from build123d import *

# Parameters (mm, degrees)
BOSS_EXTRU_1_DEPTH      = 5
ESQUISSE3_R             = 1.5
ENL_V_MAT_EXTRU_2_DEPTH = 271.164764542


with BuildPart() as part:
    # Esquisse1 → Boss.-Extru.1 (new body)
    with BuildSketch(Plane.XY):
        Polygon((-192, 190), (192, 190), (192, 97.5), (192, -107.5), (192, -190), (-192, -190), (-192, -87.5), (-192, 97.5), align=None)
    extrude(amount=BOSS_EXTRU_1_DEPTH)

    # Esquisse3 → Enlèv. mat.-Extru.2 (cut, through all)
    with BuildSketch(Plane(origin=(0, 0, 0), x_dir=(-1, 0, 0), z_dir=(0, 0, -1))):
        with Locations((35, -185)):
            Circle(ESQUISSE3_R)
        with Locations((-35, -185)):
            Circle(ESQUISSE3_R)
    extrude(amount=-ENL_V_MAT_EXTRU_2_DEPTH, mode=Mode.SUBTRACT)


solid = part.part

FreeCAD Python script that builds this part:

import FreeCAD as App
import Part
import Sketcher
from FreeCAD import Vector


def add_polygon(sketch, points):
    """Adds a closed chain of lines whose ends are joined by coincident constraints."""
    first, n = sketch.GeometryCount, len(points)
    for a, b in zip(points, points[1:] + points[:1]):
        sketch.addGeometry(Part.LineSegment(App.Vector(*a, 0), App.Vector(*b, 0)), False)
    for i in range(n):
        sketch.addConstraint(Sketcher.Constraint("Coincident", first + i, 2, first + (i + 1) % n, 1))

doc = App.newDocument("Part")
body = doc.addObject("PartDesign::Body", "Body")

# Sketch on XY plane
sketch1 = body.newObject("Sketcher::SketchObject", "Sketch")
sketch1.AttachmentSupport = (doc.getObject("XY_Plane"), [""])
sketch1.MapMode = "FlatFace"
add_polygon(sketch1, [(192, 190), (-192, 190), (-192, -190), (192, -190)])  # lines 0-3
sketch1.addConstraint(Sketcher.Constraint("Horizontal", 0))
sketch1.addConstraint(Sketcher.Constraint("Vertical", 1))
sketch1.addConstraint(Sketcher.Constraint("Horizontal", 2))
sketch1.addConstraint(Sketcher.Constraint("Vertical", 3))
sketch1.addConstraint(Sketcher.Constraint("Symmetric", 0, 2, 2, 2, -1, 1))
sketch1.addConstraint(Sketcher.Constraint("DistanceX", 0, 2, 0, 1, 384.0))
sketch1.addConstraint(Sketcher.Constraint("DistanceY", 1, 2, 1, 1, 380.0))
pad1 = body.newObject("PartDesign::Pad", "Pad")
pad1.Profile = sketch1
pad1.Length = 5

# Sketch on XY plane
sketch2 = body.newObject("Sketcher::SketchObject", "Sketch001")
sketch2.AttachmentSupport = (doc.getObject("XY_Plane"), [""])
sketch2.MapMode = "FlatFace"
sketch2.addGeometry(Part.Circle(Vector(-35, -185, 0), Vector(0, 0, 1), 1.5), False)
sketch2.addGeometry(Part.Circle(Vector(35, -185, 0), Vector(0, 0, 1), 1.5), False)
sketch2.addConstraint(Sketcher.Constraint("Equal", 0, 1))
sketch2.addConstraint(Sketcher.Constraint("Symmetric", 0, 3, 1, 3, -2))
sketch2.addConstraint(Sketcher.Constraint("Diameter", 0, 3.0))
sketch2.addConstraint(Sketcher.Constraint("DistanceX", 0, 3, -1, 1, 35.0))
sketch2.addConstraint(Sketcher.Constraint("DistanceY", 0, 3, -1, 1, 185.0))
pocket1 = body.newObject("PartDesign::Pocket", "Pocket")
pocket1.Profile = sketch2
pocket1.Type = "ThroughAll"
pocket1.Reversed = True

doc.recompute()
